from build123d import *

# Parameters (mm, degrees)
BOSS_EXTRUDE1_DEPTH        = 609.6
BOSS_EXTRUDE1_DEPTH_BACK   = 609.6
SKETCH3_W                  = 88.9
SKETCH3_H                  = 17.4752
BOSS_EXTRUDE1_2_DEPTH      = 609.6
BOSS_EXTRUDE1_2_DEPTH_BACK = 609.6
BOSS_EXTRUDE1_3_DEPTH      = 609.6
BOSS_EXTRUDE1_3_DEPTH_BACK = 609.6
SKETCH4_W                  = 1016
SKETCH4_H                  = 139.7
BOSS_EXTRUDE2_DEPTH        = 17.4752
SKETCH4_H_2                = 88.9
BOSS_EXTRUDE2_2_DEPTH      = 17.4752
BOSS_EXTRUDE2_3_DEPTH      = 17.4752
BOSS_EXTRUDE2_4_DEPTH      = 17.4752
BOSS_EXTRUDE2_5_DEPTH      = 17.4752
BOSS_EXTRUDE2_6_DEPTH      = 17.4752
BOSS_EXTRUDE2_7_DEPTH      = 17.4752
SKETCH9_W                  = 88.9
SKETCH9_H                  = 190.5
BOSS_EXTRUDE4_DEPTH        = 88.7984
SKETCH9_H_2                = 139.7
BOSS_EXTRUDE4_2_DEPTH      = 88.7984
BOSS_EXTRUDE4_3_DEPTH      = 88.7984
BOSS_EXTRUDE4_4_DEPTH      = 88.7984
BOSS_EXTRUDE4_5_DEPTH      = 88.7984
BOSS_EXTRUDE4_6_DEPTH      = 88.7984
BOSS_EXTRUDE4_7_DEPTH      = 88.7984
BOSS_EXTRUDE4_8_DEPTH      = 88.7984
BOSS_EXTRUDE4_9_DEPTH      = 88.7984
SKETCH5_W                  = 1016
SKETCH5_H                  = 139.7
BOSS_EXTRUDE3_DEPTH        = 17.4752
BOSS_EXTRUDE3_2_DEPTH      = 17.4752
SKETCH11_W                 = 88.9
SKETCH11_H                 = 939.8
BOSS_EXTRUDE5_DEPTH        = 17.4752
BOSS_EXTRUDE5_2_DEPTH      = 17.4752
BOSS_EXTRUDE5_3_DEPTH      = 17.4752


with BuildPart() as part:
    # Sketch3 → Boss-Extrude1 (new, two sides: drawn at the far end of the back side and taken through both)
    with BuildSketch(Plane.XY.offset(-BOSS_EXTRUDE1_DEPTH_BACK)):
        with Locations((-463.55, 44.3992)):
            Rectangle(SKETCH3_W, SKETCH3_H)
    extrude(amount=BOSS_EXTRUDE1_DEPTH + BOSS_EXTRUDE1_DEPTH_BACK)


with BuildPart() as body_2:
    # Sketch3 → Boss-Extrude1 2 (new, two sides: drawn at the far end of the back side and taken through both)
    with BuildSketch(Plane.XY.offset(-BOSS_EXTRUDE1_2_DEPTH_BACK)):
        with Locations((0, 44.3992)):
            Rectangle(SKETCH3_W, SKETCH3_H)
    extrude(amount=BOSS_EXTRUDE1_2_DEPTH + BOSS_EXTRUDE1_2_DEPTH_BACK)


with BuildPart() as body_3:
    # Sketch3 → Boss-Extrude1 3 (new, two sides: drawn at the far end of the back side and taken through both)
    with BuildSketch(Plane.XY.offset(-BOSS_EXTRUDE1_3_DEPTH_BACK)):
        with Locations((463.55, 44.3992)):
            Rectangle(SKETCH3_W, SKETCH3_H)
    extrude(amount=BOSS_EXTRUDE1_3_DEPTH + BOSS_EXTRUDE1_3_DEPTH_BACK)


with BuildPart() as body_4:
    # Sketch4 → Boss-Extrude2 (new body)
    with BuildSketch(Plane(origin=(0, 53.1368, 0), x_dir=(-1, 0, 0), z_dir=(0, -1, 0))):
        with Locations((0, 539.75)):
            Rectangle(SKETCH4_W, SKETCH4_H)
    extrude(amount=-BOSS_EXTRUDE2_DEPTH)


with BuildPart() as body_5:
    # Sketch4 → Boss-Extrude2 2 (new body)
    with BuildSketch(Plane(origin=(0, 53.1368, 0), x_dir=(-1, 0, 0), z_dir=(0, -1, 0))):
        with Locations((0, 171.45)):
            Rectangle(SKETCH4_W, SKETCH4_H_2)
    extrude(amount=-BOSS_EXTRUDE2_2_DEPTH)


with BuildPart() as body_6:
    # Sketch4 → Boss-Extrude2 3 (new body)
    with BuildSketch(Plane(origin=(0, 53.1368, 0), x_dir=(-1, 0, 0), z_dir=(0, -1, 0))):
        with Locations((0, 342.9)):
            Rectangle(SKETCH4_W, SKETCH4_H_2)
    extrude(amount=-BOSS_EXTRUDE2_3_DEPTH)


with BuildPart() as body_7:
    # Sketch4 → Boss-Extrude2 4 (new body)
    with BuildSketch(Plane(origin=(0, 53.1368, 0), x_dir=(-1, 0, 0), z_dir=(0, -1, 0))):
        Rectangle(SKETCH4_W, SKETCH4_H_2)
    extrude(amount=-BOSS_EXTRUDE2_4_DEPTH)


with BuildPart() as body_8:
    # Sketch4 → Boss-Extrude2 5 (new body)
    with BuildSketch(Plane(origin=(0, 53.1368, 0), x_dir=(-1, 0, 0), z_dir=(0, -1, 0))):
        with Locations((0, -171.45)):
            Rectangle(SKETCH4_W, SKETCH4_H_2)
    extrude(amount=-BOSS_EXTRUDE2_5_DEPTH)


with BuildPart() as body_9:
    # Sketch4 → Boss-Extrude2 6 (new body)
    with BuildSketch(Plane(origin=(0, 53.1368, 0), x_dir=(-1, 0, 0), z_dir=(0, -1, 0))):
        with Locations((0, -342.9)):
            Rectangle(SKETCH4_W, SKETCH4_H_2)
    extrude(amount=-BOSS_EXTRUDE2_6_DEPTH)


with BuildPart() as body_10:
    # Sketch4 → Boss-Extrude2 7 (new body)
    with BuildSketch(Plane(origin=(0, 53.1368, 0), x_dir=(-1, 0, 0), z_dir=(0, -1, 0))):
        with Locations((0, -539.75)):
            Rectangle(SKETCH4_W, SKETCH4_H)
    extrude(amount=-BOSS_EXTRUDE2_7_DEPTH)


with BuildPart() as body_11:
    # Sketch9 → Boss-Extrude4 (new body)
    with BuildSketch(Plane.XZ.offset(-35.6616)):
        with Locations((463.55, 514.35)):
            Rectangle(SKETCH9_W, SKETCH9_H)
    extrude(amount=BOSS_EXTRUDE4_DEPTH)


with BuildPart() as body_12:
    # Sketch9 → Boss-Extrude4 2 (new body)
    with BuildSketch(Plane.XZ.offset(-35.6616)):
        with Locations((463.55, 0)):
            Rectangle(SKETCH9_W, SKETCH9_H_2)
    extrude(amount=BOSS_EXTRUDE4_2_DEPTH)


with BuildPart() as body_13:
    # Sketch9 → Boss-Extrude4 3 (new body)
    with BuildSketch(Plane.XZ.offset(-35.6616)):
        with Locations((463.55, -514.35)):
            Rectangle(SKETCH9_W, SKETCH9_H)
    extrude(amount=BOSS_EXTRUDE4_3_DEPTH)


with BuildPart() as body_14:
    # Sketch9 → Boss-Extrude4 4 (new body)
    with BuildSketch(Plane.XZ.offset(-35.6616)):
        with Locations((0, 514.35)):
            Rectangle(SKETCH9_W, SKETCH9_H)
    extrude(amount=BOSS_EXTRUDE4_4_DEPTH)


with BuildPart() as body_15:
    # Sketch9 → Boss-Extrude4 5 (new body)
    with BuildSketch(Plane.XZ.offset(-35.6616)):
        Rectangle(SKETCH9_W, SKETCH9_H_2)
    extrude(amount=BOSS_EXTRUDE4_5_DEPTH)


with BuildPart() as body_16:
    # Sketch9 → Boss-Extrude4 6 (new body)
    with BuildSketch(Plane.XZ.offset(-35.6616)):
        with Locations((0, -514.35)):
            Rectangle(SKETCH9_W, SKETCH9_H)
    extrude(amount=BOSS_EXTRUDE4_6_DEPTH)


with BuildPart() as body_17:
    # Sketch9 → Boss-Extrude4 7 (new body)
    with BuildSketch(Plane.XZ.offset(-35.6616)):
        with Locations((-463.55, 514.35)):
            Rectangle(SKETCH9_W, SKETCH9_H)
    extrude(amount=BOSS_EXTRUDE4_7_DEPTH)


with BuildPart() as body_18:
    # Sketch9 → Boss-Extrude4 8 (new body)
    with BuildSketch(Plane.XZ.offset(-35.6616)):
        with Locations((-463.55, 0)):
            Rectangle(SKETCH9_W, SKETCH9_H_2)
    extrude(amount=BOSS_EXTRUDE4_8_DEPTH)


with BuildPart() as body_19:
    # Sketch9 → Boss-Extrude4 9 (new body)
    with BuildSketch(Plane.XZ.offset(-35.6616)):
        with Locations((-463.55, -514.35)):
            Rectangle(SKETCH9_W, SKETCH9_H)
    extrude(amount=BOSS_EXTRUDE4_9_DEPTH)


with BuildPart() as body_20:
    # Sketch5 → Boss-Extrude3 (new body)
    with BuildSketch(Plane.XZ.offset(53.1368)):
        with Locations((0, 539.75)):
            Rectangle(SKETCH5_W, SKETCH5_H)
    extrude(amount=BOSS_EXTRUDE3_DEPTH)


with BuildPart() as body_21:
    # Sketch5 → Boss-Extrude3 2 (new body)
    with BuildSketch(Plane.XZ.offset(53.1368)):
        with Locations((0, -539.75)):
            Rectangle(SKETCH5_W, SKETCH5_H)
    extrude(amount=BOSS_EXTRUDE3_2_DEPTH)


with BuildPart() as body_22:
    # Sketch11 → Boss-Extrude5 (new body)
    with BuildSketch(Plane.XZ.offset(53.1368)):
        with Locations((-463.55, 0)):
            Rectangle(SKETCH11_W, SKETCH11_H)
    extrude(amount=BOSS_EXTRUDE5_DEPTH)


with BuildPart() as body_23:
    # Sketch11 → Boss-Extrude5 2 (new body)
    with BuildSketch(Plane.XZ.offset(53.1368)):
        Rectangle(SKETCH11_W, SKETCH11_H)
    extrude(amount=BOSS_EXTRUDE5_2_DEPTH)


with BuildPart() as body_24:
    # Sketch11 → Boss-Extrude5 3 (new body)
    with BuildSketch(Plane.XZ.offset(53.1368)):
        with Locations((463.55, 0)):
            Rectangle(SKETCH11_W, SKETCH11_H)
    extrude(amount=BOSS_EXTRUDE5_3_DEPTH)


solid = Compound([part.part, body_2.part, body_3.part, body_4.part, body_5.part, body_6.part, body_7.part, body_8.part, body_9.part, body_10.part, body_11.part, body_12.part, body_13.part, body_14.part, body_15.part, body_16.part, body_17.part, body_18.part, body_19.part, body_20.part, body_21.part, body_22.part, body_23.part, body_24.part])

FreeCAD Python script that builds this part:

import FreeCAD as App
import Part
import Sketcher

V = App.Vector
Q = App.Units.Quantity

doc = App.newDocument("Part")
body = doc.addObject("PartDesign::Body", "Body")

sketch1 = doc.addObject("Sketcher::SketchObject", "Sketch")
body.addObject(sketch1)
sketch1.AttachmentSupport = (doc.XY_Plane, [""])
sketch1.MapMode = "FlatFace"
sketch1.addGeometry(Part.LineSegment(V(-508, 53, 0), V(-508, 36, 0)), False)
sketch1.addGeometry(Part.LineSegment(V(-508, 36, 0), V(-419, 36, 0)), False)
sketch1.addGeometry(Part.LineSegment(V(-419, 36, 0), V(-419, 53, 0)), False)
sketch1.addGeometry(Part.LineSegment(V(-419, 53, 0), V(-508, 53, 0)), False)
sketch1.addConstraint(Sketcher.Constraint("Coincident", 0, 2, 1, 1))
sketch1.addConstraint(Sketcher.Constraint("Coincident", 1, 2, 2, 1))
sketch1.addConstraint(Sketcher.Constraint("Coincident", 2, 2, 3, 1))
sketch1.addConstraint(Sketcher.Constraint("Coincident", 3, 2, 0, 1))
sketch1.addConstraint(Sketcher.Constraint("Vertical", 0))
sketch1.addConstraint(Sketcher.Constraint("Horizontal", 1))
sketch1.addConstraint(Sketcher.Constraint("Vertical", 2))
sketch1.addConstraint(Sketcher.Constraint("Horizontal", 3))
sketch1.addConstraint(Sketcher.Constraint("DistanceX", 1, 1, 1, 2, Q("3.5 in")))
sketch1.addConstraint(Sketcher.Constraint("DistanceX", 0, 2, -1, 1, Q("20 in")))
sketch1.addConstraint(Sketcher.Constraint("DistanceY", 0, 2, 0, 1, Q("0.688 in")))
sketch1.addConstraint(Sketcher.Constraint("DistanceY", -1, 1, 0, 2, Q("1.404 in")))
pad1 = doc.addObject("PartDesign::Pad", "Pad")
body.addObject(pad1)
pad1.Profile = sketch1
pad1.Type = "TwoLengths"
pad1.Length = Q("24 in")
pad1.Length2 = Q("24 in")
body2 = doc.addObject("PartDesign::Body", "Body001")

sketch2 = doc.addObject("Sketcher::SketchObject", "Sketch001")
body2.addObject(sketch2)
sketch2.AttachmentSupport = (doc.getObject("XY_Plane001"), [""])
sketch2.MapMode = "FlatFace"
sketch2.addGeometry(Part.LineSegment(V(-44, 53, 0), V(-44, 36, 0)), False)
sketch2.addGeometry(Part.LineSegment(V(-44, 36, 0), V(44, 36, 0)), False)
sketch2.addGeometry(Part.LineSegment(V(44, 36, 0), V(44, 53, 0)), False)
sketch2.addGeometry(Part.LineSegment(V(44, 53, 0), V(-44, 53, 0)), False)
sketch2.addConstraint(Sketcher.Constraint("Coincident", 0, 2, 1, 1))
sketch2.addConstraint(Sketcher.Constraint("Coincident", 1, 2, 2, 1))
sketch2.addConstraint(Sketcher.Constraint("Coincident", 2, 2, 3, 1))
sketch2.addConstraint(Sketcher.Constraint("Coincident", 3, 2, 0, 1))
sketch2.addConstraint(Sketcher.Constraint("Vertical", 0))
sketch2.addConstraint(Sketcher.Constraint("Horizontal", 1))
sketch2.addConstraint(Sketcher.Constraint("Vertical", 2))
sketch2.addConstraint(Sketcher.Constraint("Horizontal", 3))
sketch2.addConstraint(Sketcher.Constraint("DistanceX", 1, 1, 1, 2, Q("3.5 in")))
sketch2.addConstraint(Sketcher.Constraint("DistanceY", 0, 2, 0, 1, Q("0.688 in")))
sketch2.addConstraint(Sketcher.Constraint("DistanceX", 0, 2, -1, 1, Q("1.75 in")))
sketch2.addConstraint(Sketcher.Constraint("DistanceY", -1, 1, 0, 2, Q("1.404 in")))
pad2 = doc.addObject("PartDesign::Pad", "Pad001")
body2.addObject(pad2)
pad2.Profile = sketch2
pad2.Type = "TwoLengths"
pad2.Length = Q("24 in")
pad2.Length2 = Q("24 in")
body3 = doc.addObject("PartDesign::Body", "Body002")

sketch3 = doc.addObject("Sketcher::SketchObject", "Sketch002")
body3.addObject(sketch3)
sketch3.AttachmentSupport = (doc.getObject("XY_Plane002"), [""])
sketch3.MapMode = "FlatFace"
sketch3.addGeometry(Part.LineSegment(V(419, 53, 0), V(419, 36, 0)), False)
sketch3.addGeometry(Part.LineSegment(V(419, 36, 0), V(508, 36, 0)), False)
sketch3.addGeometry(Part.LineSegment(V(508, 36, 0), V(508, 53, 0)), False)
sketch3.addGeometry(Part.LineSegment(V(508, 53, 0), V(419, 53, 0)), False)
sketch3.addConstraint(Sketcher.Constraint("Coincident", 0, 2, 1, 1))
sketch3.addConstraint(Sketcher.Constraint("Coincident", 1, 2, 2, 1))
sketch3.addConstraint(Sketcher.Constraint("Coincident", 2, 2, 3, 1))
sketch3.addConstraint(Sketcher.Constraint("Coincident", 3, 2, 0, 1))
sketch3.addConstraint(Sketcher.Constraint("Vertical", 0))
sketch3.addConstraint(Sketcher.Constraint("Horizontal", 1))
sketch3.addConstraint(Sketcher.Constraint("Vertical", 2))
sketch3.addConstraint(Sketcher.Constraint("Horizontal", 3))
sketch3.addConstraint(Sketcher.Constraint("DistanceX", 1, 1, 1, 2, Q("3.5 in")))
sketch3.addConstraint(Sketcher.Constraint("DistanceX", -1, 1, 1, 2, Q("20 in")))
sketch3.addConstraint(Sketcher.Constraint("DistanceY", 0, 2, 0, 1, Q("0.688 in")))
sketch3.addConstraint(Sketcher.Constraint("DistanceY", -1, 1, 0, 2, Q("1.404 in")))
pad3 = doc.addObject("PartDesign::Pad", "Pad002")
body3.addObject(pad3)
pad3.Profile = sketch3
pad3.Type = "TwoLengths"
pad3.Length = Q("24 in")
pad3.Length2 = Q("24 in")
body4 = doc.addObject("PartDesign::Body", "Body003")

sketch4 = doc.addObject("Sketcher::SketchObject", "Sketch003")
body4.addObject(sketch4)
sketch4.AttachmentSupport = (doc.getObject("XZ_Plane003"), [""])
sketch4.MapMode = "FlatFace"
sketch4.AttachmentOffset = App.Placement(V(0, 0, -2.092 * 25.4), App.Rotation())
sketch4.addGeometry(Part.LineSegment(V(508, -610, 0), V(508, -470, 0)), False)
sketch4.addGeometry(Part.LineSegment(V(508, -470, 0), V(-508, -470, 0)), False)
sketch4.addGeometry(Part.LineSegment(V(-508, -470, 0), V(-508, -610, 0)), False)
sketch4.addGeometry(Part.LineSegment(V(-508, -610, 0), V(508, -610, 0)), False)
sketch4.addConstraint(Sketcher.Constraint("Coincident", 0, 2, 1, 1))
sketch4.addConstraint(Sketcher.Constraint("Coincident", 1, 2, 2, 1))
sketch4.addConstraint(Sketcher.Constraint("Coincident", 2, 2, 3, 1))
sketch4.addConstraint(Sketcher.Constraint("Coincident", 3, 2, 0, 1))
sketch4.addConstraint(Sketcher.Constraint("Vertical", 0))
sketch4.addConstraint(Sketcher.Constraint("Horizontal", 1))
sketch4.addConstraint(Sketcher.Constraint("Vertical", 2))
sketch4.addConstraint(Sketcher.Constraint("Horizontal", 3))
sketch4.addConstraint(Sketcher.Constraint("DistanceX", 1, 2, 1, 1, Q("40 in")))
sketch4.addConstraint(Sketcher.Constraint("DistanceY", 0, 1, 0, 2, Q("5.5 in")))
sketch4.addConstraint(Sketcher.Constraint("DistanceX", -1, 1, 0, 2, Q("20 in")))
sketch4.addConstraint(Sketcher.Constraint("DistanceY", 2, 2, -1, 1, Q("24 in")))
pad4 = doc.addObject("PartDesign::Pad", "Pad003")
body4.addObject(pad4)
pad4.Profile = sketch4
pad4.Length = Q("0.688 in")
pad4.Reversed = True
body5 = doc.addObject("PartDesign::Body", "Body004")

sketch5 = doc.addObject("Sketcher::SketchObject", "Sketch004")
body5.addObject(sketch5)
sketch5.AttachmentSupport = (doc.getObject("XZ_Plane004"), [""])
sketch5.MapMode = "FlatFace"
sketch5.AttachmentOffset = App.Placement(V(0, 0, -2.092 * 25.4), App.Rotation())
sketch5.addGeometry(Part.LineSegment(V(508, -216, 0), V(508, -127, 0)), False)
sketch5.addGeometry(Part.LineSegment(V(508, -127, 0), V(-508, -127, 0)), False)
sketch5.addGeometry(Part.LineSegment(V(-508, -127, 0), V(-508, -216, 0)), False)
sketch5.addGeometry(Part.LineSegment(V(-508, -216, 0), V(508, -216, 0)), False)
sketch5.addConstraint(Sketcher.Constraint("Coincident", 0, 2, 1, 1))
sketch5.addConstraint(Sketcher.Constraint("Coincident", 1, 2, 2, 1))
sketch5.addConstraint(Sketcher.Constraint("Coincident", 2, 2, 3, 1))
sketch5.addConstraint(Sketcher.Constraint("Coincident", 3, 2, 0, 1))
sketch5.addConstraint(Sketcher.Constraint("Vertical", 0))
sketch5.addConstraint(Sketcher.Constraint("Horizontal", 1))
sketch5.addConstraint(Sketcher.Constraint("Vertical", 2))
sketch5.addConstraint(Sketcher.Constraint("Horizontal", 3))
sketch5.addConstraint(Sketcher.Constraint("DistanceX", 1, 2, 1, 1, Q("40 in")))
sketch5.addConstraint(Sketcher.Constraint("DistanceY", 0, 1, 0, 2, Q("3.5 in")))
sketch5.addConstraint(Sketcher.Constraint("DistanceX", -1, 1, 0, 2, Q("20 in")))
sketch5.addConstraint(Sketcher.Constraint("DistanceY", 0, 2, -1, 1, Q("5 in")))
pad5 = doc.addObject("PartDesign::Pad", "Pad004")
body5.addObject(pad5)
pad5.Profile = sketch5
pad5.Length = Q("0.688 in")
pad5.Reversed = True
body6 = doc.addObject("PartDesign::Body", "Body005")

sketch6 = doc.addObject("Sketcher::SketchObject", "Sketch005")
body6.addObject(sketch6)
sketch6.AttachmentSupport = (doc.getObject("XZ_Plane005"), [""])
sketch6.MapMode = "FlatFace"
sketch6.AttachmentOffset = App.Placement(V(0, 0, -2.092 * 25.4), App.Rotation())
sketch6.addGeometry(Part.LineSegment(V(508, -387, 0), V(508, -298, 0)), False)
sketch6.addGeometry(Part.LineSegment(V(508, -298, 0), V(-508, -298, 0)), False)
sketch6.addGeometry(Part.LineSegment(V(-508, -298, 0), V(-508, -387, 0)), False)
sketch6.addGeometry(Part.LineSegment(V(-508, -387, 0), V(508, -387, 0)), False)
sketch6.addConstraint(Sketcher.Constraint("Coincident", 0, 2, 1, 1))
sketch6.addConstraint(Sketcher.Constraint("Coincident", 1, 2, 2, 1))
sketch6.addConstraint(Sketcher.Constraint("Coincident", 2, 2, 3, 1))
sketch6.addConstraint(Sketcher.Constraint("Coincident", 3, 2, 0, 1))
sketch6.addConstraint(Sketcher.Constraint("Vertical", 0))
sketch6.addConstraint(Sketcher.Constraint("Horizontal", 1))
sketch6.addConstraint(Sketcher.Constraint("Vertical", 2))
sketch6.addConstraint(Sketcher.Constraint("Horizontal", 3))
sketch6.addConstraint(Sketcher.Constraint("DistanceX", 1, 2, 1, 1, Q("40 in")))
sketch6.addConstraint(Sketcher.Constraint("DistanceY", 0, 1, 0, 2, Q("3.5 in")))
sketch6.addConstraint(Sketcher.Constraint("DistanceX", -1, 1, 0, 2, Q("20 in")))
sketch6.addConstraint(Sketcher.Constraint("DistanceY", 0, 2, -1, 1, Q("11.75 in")))
pad6 = doc.addObject("PartDesign::Pad", "Pad005")
body6.addObject(pad6)
pad6.Profile = sketch6
pad6.Length = Q("0.688 in")
pad6.Reversed = True
body7 = doc.addObject("PartDesign::Body", "Body006")

sketch7 = doc.addObject("Sketcher::SketchObject", "Sketch006")
body7.addObject(sketch7)
sketch7.AttachmentSupport = (doc.getObject("XZ_Plane006"), [""])
sketch7.MapMode = "FlatFace"
sketch7.AttachmentOffset = App.Placement(V(0, 0, -2.092 * 25.4), App.Rotation())
sketch7.addGeometry(Part.LineSegment(V(508, -44, 0), V(508, 44, 0)), False)
sketch7.addGeometry(Part.LineSegment(V(508, 44, 0), V(-508, 44, 0)), False)
sketch7.addGeometry(Part.LineSegment(V(-508, 44, 0), V(-508, -44, 0)), False)
sketch7.addGeometry(Part.LineSegment(V(-508, -44, 0), V(508, -44, 0)), False)
sketch7.addConstraint(Sketcher.Constraint("Coincident", 0, 2, 1, 1))
sketch7.addConstraint(Sketcher.Constraint("Coincident", 1, 2, 2, 1))
sketch7.addConstraint(Sketcher.Constraint("Coincident", 2, 2, 3, 1))
sketch7.addConstraint(Sketcher.Constraint("Coincident", 3, 2, 0, 1))
sketch7.addConstraint(Sketcher.Constraint("Vertical", 0))
sketch7.addConstraint(Sketcher.Constraint("Horizontal", 1))
sketch7.addConstraint(Sketcher.Constraint("Vertical", 2))
sketch7.addConstraint(Sketcher.Constraint("Horizontal", 3))
sketch7.addConstraint(Sketcher.Constraint("Symmetric", 0, 2, 2, 2, -1, 1))
sketch7.addConstraint(Sketcher.Constraint("DistanceX", 1, 2, 1, 1, Q("40 in")))
sketch7.addConstraint(Sketcher.Constraint("DistanceY", 0, 1, 0, 2, Q("3.5 in")))
pad7 = doc.addObject("PartDesign::Pad", "Pad006")
body7.addObject(pad7)
pad7.Profile = sketch7
pad7.Length = Q("0.688 in")
pad7.Reversed = True
body8 = doc.addObject("PartDesign::Body", "Body007")

sketch8 = doc.addObject("Sketcher::SketchObject", "Sketch007")
body8.addObject(sketch8)
sketch8.AttachmentSupport = (doc.getObject("XZ_Plane007"), [""])
sketch8.MapMode = "FlatFace"
sketch8.AttachmentOffset = App.Placement(V(0, 0, -2.092 * 25.4), App.Rotation())
sketch8.addGeometry(Part.LineSegment(V(508, 127, 0), V(508, 216, 0)), False)
sketch8.addGeometry(Part.LineSegment(V(508, 216, 0), V(-508, 216, 0)), False)
sketch8.addGeometry(Part.LineSegment(V(-508, 216, 0), V(-508, 127, 0)), False)
sketch8.addGeometry(Part.LineSegment(V(-508, 127, 0), V(508, 127, 0)), False)
sketch8.addConstraint(Sketcher.Constraint("Coincident", 0, 2, 1, 1))
sketch8.addConstraint(Sketcher.Constraint("Coincident", 1, 2, 2, 1))
sketch8.addConstraint(Sketcher.Constraint("Coincident", 2, 2, 3, 1))
sketch8.addConstraint(Sketcher.Constraint("Coincident", 3, 2, 0, 1))
sketch8.addConstraint(Sketcher.Constraint("Vertical", 0))
sketch8.addConstraint(Sketcher.Constraint("Horizontal", 1))
sketch8.addConstraint(Sketcher.Constraint("Vertical", 2))
sketch8.addConstraint(Sketcher.Constraint("Horizontal", 3))
sketch8.addConstraint(Sketcher.Constraint("DistanceX", 1, 2, 1, 1, Q("40 in")))
sketch8.addConstraint(Sketcher.Constraint("DistanceY", 0, 1, 0, 2, Q("3.5 in")))
sketch8.addConstraint(Sketcher.Constraint("DistanceX", -1, 1, 0, 2, Q("20 in")))
sketch8.addConstraint(Sketcher.Constraint("DistanceY", -1, 1, 2, 2, Q("5 in")))
pad8 = doc.addObject("PartDesign::Pad", "Pad007")
body8.addObject(pad8)
pad8.Profile = sketch8
pad8.Length = Q("0.688 in")
pad8.Reversed = True
body9 = doc.addObject("PartDesign::Body", "Body008")

sketch9 = doc.addObject("Sketcher::SketchObject", "Sketch008")
body9.addObject(sketch9)
sketch9.AttachmentSupport = (doc.getObject("XZ_Plane008"), [""])
sketch9.MapMode = "FlatFace"
sketch9.AttachmentOffset = App.Placement(V(0, 0, -2.092 * 25.4), App.Rotation())
sketch9.addGeometry(Part.LineSegment(V(508, 298, 0), V(508, 387, 0)), False)
sketch9.addGeometry(Part.LineSegment(V(508, 387, 0), V(-508, 387, 0)), False)
sketch9.addGeometry(Part.LineSegment(V(-508, 387, 0), V(-508, 298, 0)), False)
sketch9.addGeometry(Part.LineSegment(V(-508, 298, 0), V(508, 298, 0)), False)
sketch9.addConstraint(Sketcher.Constraint("Coincident", 0, 2, 1, 1))
sketch9.addConstraint(Sketcher.Constraint("Coincident", 1, 2, 2, 1))
sketch9.addConstraint(Sketcher.Constraint("Coincident", 2, 2, 3, 1))
sketch9.addConstraint(Sketcher.Constraint("Coincident", 3, 2, 0, 1))
sketch9.addConstraint(Sketcher.Constraint("Vertical", 0))
sketch9.addConstraint(Sketcher.Constraint("Horizontal", 1))
sketch9.addConstraint(Sketcher.Constraint("Vertical", 2))
sketch9.addConstraint(Sketcher.Constraint("Horizontal", 3))
sketch9.addConstraint(Sketcher.Constraint("DistanceX", 1, 2, 1, 1, Q("40 in")))
sketch9.addConstraint(Sketcher.Constraint("DistanceY", 0, 1, 0, 2, Q("3.5 in")))
sketch9.addConstraint(Sketcher.Constraint("DistanceX", -1, 1, 0, 2, Q("20 in")))
sketch9.addConstraint(Sketcher.Constraint("DistanceY", -1, 1, 0, 2, Q("15.25 in")))
pad9 = doc.addObject("PartDesign::Pad", "Pad008")
body9.addObject(pad9)
pad9.Profile = sketch9
pad9.Length = Q("0.688 in")
pad9.Reversed = True
body10 = doc.addObject("PartDesign::Body", "Body009")

sketch10 = doc.addObject("Sketcher::SketchObject", "Sketch009")
body10.addObject(sketch10)
sketch10.AttachmentSupport = (doc.getObject("XZ_Plane009"), [""])
sketch10.MapMode = "FlatFace"
sketch10.AttachmentOffset = App.Placement(V(0, 0, -2.092 * 25.4), App.Rotation())
sketch10.addGeometry(Part.LineSegment(V(508, 470, 0), V(508, 610, 0)), False)
sketch10.addGeometry(Part.LineSegment(V(508, 610, 0), V(-508, 610, 0)), False)
sketch10.addGeometry(Part.LineSegment(V(-508, 610, 0), V(-508, 470, 0)), False)
sketch10.addGeometry(Part.LineSegment(V(-508, 470, 0), V(508, 470, 0)), False)
sketch10.addConstraint(Sketcher.Constraint("Coincident", 0, 2, 1, 1))
sketch10.addConstraint(Sketcher.Constraint("Coincident", 1, 2, 2, 1))
sketch10.addConstraint(Sketcher.Constraint("Coincident", 2, 2, 3, 1))
sketch10.addConstraint(Sketcher.Constraint("Coincident", 3, 2, 0, 1))
sketch10.addConstraint(Sketcher.Constraint("Vertical", 0))
sketch10.addConstraint(Sketcher.Constraint("Horizontal", 1))
sketch10.addConstraint(Sketcher.Constraint("Vertical", 2))
sketch10.addConstraint(Sketcher.Constraint("Horizontal", 3))
sketch10.addConstraint(Sketcher.Constraint("DistanceX", 1, 2, 1, 1, Q("40 in")))
sketch10.addConstraint(Sketcher.Constraint("DistanceY", 0, 1, 0, 2, Q("5.5 in")))
sketch10.addConstraint(Sketcher.Constraint("DistanceX", -1, 1, 0, 2, Q("20 in")))
sketch10.addConstraint(Sketcher.Constraint("DistanceY", -1, 1, 0, 2, Q("24 in")))
pad10 = doc.addObject("PartDesign::Pad", "Pad009")
body10.addObject(pad10)
pad10.Profile = sketch10
pad10.Length = Q("0.688 in")
pad10.Reversed = True
body11 = doc.addObject("PartDesign::Body", "Body010")

sketch11 = doc.addObject("Sketcher::SketchObject", "Sketch010")
body11.addObject(sketch11)
sketch11.AttachmentSupport = (doc.getObject("XZ_Plane010"), [""])
sketch11.MapMode = "FlatFace"
sketch11.AttachmentOffset = App.Placement(V(0, 0, -1.404 * 25.4), App.Rotation())
sketch11.addGeometry(Part.LineSegment(V(419, 610, 0), V(419, 419, 0)), False)
sketch11.addGeometry(Part.LineSegment(V(419, 419, 0), V(508, 419, 0)), False)
sketch11.addGeometry(Part.LineSegment(V(508, 419, 0), V(508, 610, 0)), False)
sketch11.addGeometry(Part.LineSegment(V(508, 610, 0), V(419, 610, 0)), False)
sketch11.addConstraint(Sketcher.Constraint("Coincident", 0, 2, 1, 1))
sketch11.addConstraint(Sketcher.Constraint("Coincident", 1, 2, 2, 1))
sketch11.addConstraint(Sketcher.Constraint("Coincident", 2, 2, 3, 1))
sketch11.addConstraint(Sketcher.Constraint("Coincident", 3, 2, 0, 1))
sketch11.addConstraint(Sketcher.Constraint("Vertical", 0))
sketch11.addConstraint(Sketcher.Constraint("Horizontal", 1))
sketch11.addConstraint(Sketcher.Constraint("Vertical", 2))
sketch11.addConstraint(Sketcher.Constraint("Horizontal", 3))
sketch11.addConstraint(Sketcher.Constraint("DistanceX", 1, 1, 1, 2, Q("3.5 in")))
sketch11.addConstraint(Sketcher.Constraint("DistanceY", 0, 2, 0, 1, Q("7.5 in")))
sketch11.addConstraint(Sketcher.Constraint("DistanceX", -1, 1, 1, 2, Q("20 in")))
sketch11.addConstraint(Sketcher.Constraint("DistanceY", -1, 1, 2, 2, Q("24 in")))
pad11 = doc.addObject("PartDesign::Pad", "Pad010")
body11.addObject(pad11)
pad11.Profile = sketch11
pad11.Length = Q("3.496 in")
body12 = doc.addObject("PartDesign::Body", "Body011")

sketch12 = doc.addObject("Sketcher::SketchObject", "Sketch011")
body12.addObject(sketch12)
sketch12.AttachmentSupport = (doc.getObject("XZ_Plane011"), [""])
sketch12.MapMode = "FlatFace"
sketch12.AttachmentOffset = App.Placement(V(0, 0, -1.404 * 25.4), App.Rotation())
sketch12.addGeometry(Part.LineSegment(V(419, 70, 0), V(419, -70, 0)), False)
sketch12.addGeometry(Part.LineSegment(V(419, -70, 0), V(508, -70, 0)), False)
sketch12.addGeometry(Part.LineSegment(V(508, -70, 0), V(508, 70, 0)), False)
sketch12.addGeometry(Part.LineSegment(V(508, 70, 0), V(419, 70, 0)), False)
sketch12.addConstraint(Sketcher.Constraint("Coincident", 0, 2, 1, 1))
sketch12.addConstraint(Sketcher.Constraint("Coincident", 1, 2, 2, 1))
sketch12.addConstraint(Sketcher.Constraint("Coincident", 2, 2, 3, 1))
sketch12.addConstraint(Sketcher.Constraint("Coincident", 3, 2, 0, 1))
sketch12.addConstraint(Sketcher.Constraint("Vertical", 0))
sketch12.addConstraint(Sketcher.Constraint("Horizontal", 1))
sketch12.addConstraint(Sketcher.Constraint("Vertical", 2))
sketch12.addConstraint(Sketcher.Constraint("Horizontal", 3))
sketch12.addConstraint(Sketcher.Constraint("DistanceX", 1, 1, 1, 2, Q("3.5 in")))
sketch12.addConstraint(Sketcher.Constraint("DistanceY", 0, 2, 0, 1, Q("5.5 in")))
sketch12.addConstraint(Sketcher.Constraint("DistanceX", -1, 1, 1, 2, Q("20 in")))
sketch12.addConstraint(Sketcher.Constraint("DistanceY", 0, 2, -1, 1, Q("2.75 in")))
pad12 = doc.addObject("PartDesign::Pad", "Pad011")
body12.addObject(pad12)
pad12.Profile = sketch12
pad12.Length = Q("3.496 in")
body13 = doc.addObject("PartDesign::Body", "Body012")

sketch13 = doc.addObject("Sketcher::SketchObject", "Sketch012")
body13.addObject(sketch13)
sketch13.AttachmentSupport = (doc.getObject("XZ_Plane012"), [""])
sketch13.MapMode = "FlatFace"
sketch13.AttachmentOffset = App.Placement(V(0, 0, -1.404 * 25.4), App.Rotation())
sketch13.addGeometry(Part.LineSegment(V(419, -419, 0), V(419, -610, 0)), False)
sketch13.addGeometry(Part.LineSegment(V(419, -610, 0), V(508, -610, 0)), False)
sketch13.addGeometry(Part.LineSegment(V(508, -610, 0), V(508, -419, 0)), False)
sketch13.addGeometry(Part.LineSegment(V(508, -419, 0), V(419, -419, 0)), False)
sketch13.addConstraint(Sketcher.Constraint("Coincident", 0, 2, 1, 1))
sketch13.addConstraint(Sketcher.Constraint("Coincident", 1, 2, 2, 1))
sketch13.addConstraint(Sketcher.Constraint("Coincident", 2, 2, 3, 1))
sketch13.addConstraint(Sketcher.Constraint("Coincident", 3, 2, 0, 1))
sketch13.addConstraint(Sketcher.Constraint("Vertical", 0))
sketch13.addConstraint(Sketcher.Constraint("Horizontal", 1))
sketch13.addConstraint(Sketcher.Constraint("Vertical", 2))
sketch13.addConstraint(Sketcher.Constraint("Horizontal", 3))
sketch13.addConstraint(Sketcher.Constraint("DistanceX", 1, 1, 1, 2, Q("3.5 in")))
sketch13.addConstraint(Sketcher.Constraint("DistanceY", 0, 2, 0, 1, Q("7.5 in")))
sketch13.addConstraint(Sketcher.Constraint("DistanceY", 0, 2, -1, 1, Q("24 in")))
sketch13.addConstraint(Sketcher.Constraint("DistanceX", -1, 1, 1, 2, Q("20 in")))
pad13 = doc.addObject("PartDesign::Pad", "Pad012")
body13.addObject(pad13)
pad13.Profile = sketch13
pad13.Length = Q("3.496 in")
body14 = doc.addObject("PartDesign::Body", "Body013")

sketch14 = doc.addObject("Sketcher::SketchObject", "Sketch013")
body14.addObject(sketch14)
sketch14.AttachmentSupport = (doc.getObject("XZ_Plane013"), [""])
sketch14.MapMode = "FlatFace"
sketch14.AttachmentOffset = App.Placement(V(0, 0, -1.404 * 25.4), App.Rotation())
sketch14.addGeometry(Part.LineSegment(V(-44, 610, 0), V(-44, 419, 0)), False)
sketch14.addGeometry(Part.LineSegment(V(-44, 419, 0), V(44, 419, 0)), False)
sketch14.addGeometry(Part.LineSegment(V(44, 419, 0), V(44, 610, 0)), False)
sketch14.addGeometry(Part.LineSegment(V(44, 610, 0), V(-44, 610, 0)), False)
sketch14.addConstraint(Sketcher.Constraint("Coincident", 0, 2, 1, 1))
sketch14.addConstraint(Sketcher.Constraint("Coincident", 1, 2, 2, 1))
sketch14.addConstraint(Sketcher.Constraint("Coincident", 2, 2, 3, 1))
sketch14.addConstraint(Sketcher.Constraint("Coincident", 3, 2, 0, 1))
sketch14.addConstraint(Sketcher.Constraint("Vertical", 0))
sketch14.addConstraint(Sketcher.Constraint("Horizontal", 1))
sketch14.addConstraint(Sketcher.Constraint("Vertical", 2))
sketch14.addConstraint(Sketcher.Constraint("Horizontal", 3))
sketch14.addConstraint(Sketcher.Constraint("DistanceX", 1, 1, 1, 2, Q("3.5 in")))
sketch14.addConstraint(Sketcher.Constraint("DistanceY", 0, 2, 0, 1, Q("7.5 in")))
sketch14.addConstraint(Sketcher.Constraint("DistanceY", -1, 1, 2, 2, Q("24 in")))
sketch14.addConstraint(Sketcher.Constraint("DistanceX", 0, 2, -1, 1, Q("1.75 in")))
pad14 = doc.addObject("PartDesign::Pad", "Pad013")
body14.addObject(pad14)
pad14.Profile = sketch14
pad14.Length = Q("3.496 in")
body15 = doc.addObject("PartDesign::Body", "Body014")

sketch15 = doc.addObject("Sketcher::SketchObject", "Sketch014")
body15.addObject(sketch15)
sketch15.AttachmentSupport = (doc.getObject("XZ_Plane014"), [""])
sketch15.MapMode = "FlatFace"
sketch15.AttachmentOffset = App.Placement(V(0, 0, -1.404 * 25.4), App.Rotation())
sketch15.addGeometry(Part.LineSegment(V(-44, 70, 0), V(-44, -70, 0)), False)
sketch15.addGeometry(Part.LineSegment(V(-44, -70, 0), V(44, -70, 0)), False)
sketch15.addGeometry(Part.LineSegment(V(44, -70, 0), V(44, 70, 0)), False)
sketch15.addGeometry(Part.LineSegment(V(44, 70, 0), V(-44, 70, 0)), False)
sketch15.addConstraint(Sketcher.Constraint("Coincident", 0, 2, 1, 1))
sketch15.addConstraint(Sketcher.Constraint("Coincident", 1, 2, 2, 1))
sketch15.addConstraint(Sketcher.Constraint("Coincident", 2, 2, 3, 1))
sketch15.addConstraint(Sketcher.Constraint("Coincident", 3, 2, 0, 1))
sketch15.addConstraint(Sketcher.Constraint("Vertical", 0))
sketch15.addConstraint(Sketcher.Constraint("Horizontal", 1))
sketch15.addConstraint(Sketcher.Constraint("Vertical", 2))
sketch15.addConstraint(Sketcher.Constraint("Horizontal", 3))
sketch15.addConstraint(Sketcher.Constraint("Symmetric", 0, 2, 2, 2, -1, 1))
sketch15.addConstraint(Sketcher.Constraint("DistanceX", 1, 1, 1, 2, Q("3.5 in")))
sketch15.addConstraint(Sketcher.Constraint("DistanceY", 0, 2, 0, 1, Q("5.5 in")))
pad15 = doc.addObject("PartDesign::Pad", "Pad014")
body15.addObject(pad15)
pad15.Profile = sketch15
pad15.Length = Q("3.496 in")
body16 = doc.addObject("PartDesign::Body", "Body015")

sketch16 = doc.addObject("Sketcher::SketchObject", "Sketch015")
body16.addObject(sketch16)
sketch16.AttachmentSupport = (doc.getObject("XZ_Plane015"), [""])
sketch16.MapMode = "FlatFace"
sketch16.AttachmentOffset = App.Placement(V(0, 0, -1.404 * 25.4), App.Rotation())
sketch16.addGeometry(Part.LineSegment(V(-44, -419, 0), V(-44, -610, 0)), False)
sketch16.addGeometry(Part.LineSegment(V(-44, -610, 0), V(44, -610, 0)), False)
sketch16.addGeometry(Part.LineSegment(V(44, -610, 0), V(44, -419, 0)), False)
sketch16.addGeometry(Part.LineSegment(V(44, -419, 0), V(-44, -419, 0)), False)
sketch16.addConstraint(Sketcher.Constraint("Coincident", 0, 2, 1, 1))
sketch16.addConstraint(Sketcher.Constraint("Coincident", 1, 2, 2, 1))
sketch16.addConstraint(Sketcher.Constraint("Coincident", 2, 2, 3, 1))
sketch16.addConstraint(Sketcher.Constraint("Coincident", 3, 2, 0, 1))
sketch16.addConstraint(Sketcher.Constraint("Vertical", 0))
sketch16.addConstraint(Sketcher.Constraint("Horizontal", 1))
sketch16.addConstraint(Sketcher.Constraint("Vertical", 2))
sketch16.addConstraint(Sketcher.Constraint("Horizontal", 3))
sketch16.addConstraint(Sketcher.Constraint("DistanceX", 1, 1, 1, 2, Q("3.5 in")))
sketch16.addConstraint(Sketcher.Constraint("DistanceY", 0, 2, 0, 1, Q("7.5 in")))
sketch16.addConstraint(Sketcher.Constraint("DistanceY", 0, 2, -1, 1, Q("24 in")))
sketch16.addConstraint(Sketcher.Constraint("DistanceX", 0, 2, -1, 1, Q("1.75 in")))
pad16 = doc.addObject("PartDesign::Pad", "Pad015")
body16.addObject(pad16)
pad16.Profile = sketch16
pad16.Length = Q("3.496 in")
body17 = doc.addObject("PartDesign::Body", "Body016")

sketch17 = doc.addObject("Sketcher::SketchObject", "Sketch016")
body17.addObject(sketch17)
sketch17.AttachmentSupport = (doc.getObject("XZ_Plane016"), [""])
sketch17.MapMode = "FlatFace"
sketch17.AttachmentOffset = App.Placement(V(0, 0, -1.404 * 25.4), App.Rotation())
sketch17.addGeometry(Part.LineSegment(V(-508, 610, 0), V(-508, 419, 0)), False)
sketch17.addGeometry(Part.LineSegment(V(-508, 419, 0), V(-419, 419, 0)), False)
sketch17.addGeometry(Part.LineSegment(V(-419, 419, 0), V(-419, 610, 0)), False)
sketch17.addGeometry(Part.LineSegment(V(-419, 610, 0), V(-508, 610, 0)), False)
sketch17.addConstraint(Sketcher.Constraint("Coincident", 0, 2, 1, 1))
sketch17.addConstraint(Sketcher.Constraint("Coincident", 1, 2, 2, 1))
sketch17.addConstraint(Sketcher.Constraint("Coincident", 2, 2, 3, 1))
sketch17.addConstraint(Sketcher.Constraint("Coincident", 3, 2, 0, 1))
sketch17.addConstraint(Sketcher.Constraint("Vertical", 0))
sketch17.addConstraint(Sketcher.Constraint("Horizontal", 1))
sketch17.addConstraint(Sketcher.Constraint("Vertical", 2))
sketch17.addConstraint(Sketcher.Constraint("Horizontal", 3))
sketch17.addConstraint(Sketcher.Constraint("DistanceX", 1, 1, 1, 2, Q("3.5 in")))
sketch17.addConstraint(Sketcher.Constraint("DistanceY", 0, 2, 0, 1, Q("7.5 in")))
sketch17.addConstraint(Sketcher.Constraint("DistanceX", 0, 2, -1, 1, Q("20 in")))
sketch17.addConstraint(Sketcher.Constraint("DistanceY", -1, 1, 2, 2, Q("24 in")))
pad17 = doc.addObject("PartDesign::Pad", "Pad016")
body17.addObject(pad17)
pad17.Profile = sketch17
pad17.Length = Q("3.496 in")
body18 = doc.addObject("PartDesign::Body", "Body017")

sketch18 = doc.addObject("Sketcher::SketchObject", "Sketch017")
body18.addObject(sketch18)
sketch18.AttachmentSupport = (doc.getObject("XZ_Plane017"), [""])
sketch18.MapMode = "FlatFace"
sketch18.AttachmentOffset = App.Placement(V(0, 0, -1.404 * 25.4), App.Rotation())
sketch18.addGeometry(Part.LineSegment(V(-508, 70, 0), V(-508, -70, 0)), False)
sketch18.addGeometry(Part.LineSegment(V(-508, -70, 0), V(-419, -70, 0)), False)
sketch18.addGeometry(Part.LineSegment(V(-419, -70, 0), V(-419, 70, 0)), False)
sketch18.addGeometry(Part.LineSegment(V(-419, 70, 0), V(-508, 70, 0)), False)
sketch18.addConstraint(Sketcher.Constraint("Coincident", 0, 2, 1, 1))
sketch18.addConstraint(Sketcher.Constraint("Coincident", 1, 2, 2, 1))
sketch18.addConstraint(Sketcher.Constraint("Coincident", 2, 2, 3, 1))
sketch18.addConstraint(Sketcher.Constraint("Coincident", 3, 2, 0, 1))
sketch18.addConstraint(Sketcher.Constraint("Vertical", 0))
sketch18.addConstraint(Sketcher.Constraint("Horizontal", 1))
sketch18.addConstraint(Sketcher.Constraint("Vertical", 2))
sketch18.addConstraint(Sketcher.Constraint("Horizontal", 3))
sketch18.addConstraint(Sketcher.Constraint("DistanceX", 1, 1, 1, 2, Q("3.5 in")))
sketch18.addConstraint(Sketcher.Constraint("DistanceY", 0, 2, 0, 1, Q("5.5 in")))
sketch18.addConstraint(Sketcher.Constraint("DistanceX", 0, 2, -1, 1, Q("20 in")))
sketch18.addConstraint(Sketcher.Constraint("DistanceY", 0, 2, -1, 1, Q("2.75 in")))
pad18 = doc.addObject("PartDesign::Pad", "Pad017")
body18.addObject(pad18)
pad18.Profile = sketch18
pad18.Length = Q("3.496 in")
body19 = doc.addObject("PartDesign::Body", "Body018")

sketch19 = doc.addObject("Sketcher::SketchObject", "Sketch018")
body19.addObject(sketch19)
sketch19.AttachmentSupport = (doc.getObject("XZ_Plane018"), [""])
sketch19.MapMode = "FlatFace"
sketch19.AttachmentOffset = App.Placement(V(0, 0, -1.404 * 25.4), App.Rotation())
sketch19.addGeometry(Part.LineSegment(V(-508, -419, 0), V(-508, -610, 0)), False)
sketch19.addGeometry(Part.LineSegment(V(-508, -610, 0), V(-419, -610, 0)), False)
sketch19.addGeometry(Part.LineSegment(V(-419, -610, 0), V(-419, -419, 0)), False)
sketch19.addGeometry(Part.LineSegment(V(-419, -419, 0), V(-508, -419, 0)), False)
sketch19.addConstraint(Sketcher.Constraint("Coincident", 0, 2, 1, 1))
sketch19.addConstraint(Sketcher.Constraint("Coincident", 1, 2, 2, 1))
sketch19.addConstraint(Sketcher.Constraint("Coincident", 2, 2, 3, 1))
sketch19.addConstraint(Sketcher.Constraint("Coincident", 3, 2, 0, 1))
sketch19.addConstraint(Sketcher.Constraint("Vertical", 0))
sketch19.addConstraint(Sketcher.Constraint("Horizontal", 1))
sketch19.addConstraint(Sketcher.Constraint("Vertical", 2))
sketch19.addConstraint(Sketcher.Constraint("Horizontal", 3))
sketch19.addConstraint(Sketcher.Constraint("DistanceX", 1, 1, 1, 2, Q("3.5 in")))
sketch19.addConstraint(Sketcher.Constraint("DistanceY", 0, 2, 0, 1, Q("7.5 in")))
sketch19.addConstraint(Sketcher.Constraint("DistanceX", 0, 2, -1, 1, Q("20 in")))
sketch19.addConstraint(Sketcher.Constraint("DistanceY", 0, 2, -1, 1, Q("24 in")))
pad19 = doc.addObject("PartDesign::Pad", "Pad018")
body19.addObject(pad19)
pad19.Profile = sketch19
pad19.Length = Q("3.496 in")
body20 = doc.addObject("PartDesign::Body", "Body019")

sketch20 = doc.addObject("Sketcher::SketchObject", "Sketch019")
body20.addObject(sketch20)
sketch20.AttachmentSupport = (doc.getObject("XZ_Plane019"), [""])
sketch20.MapMode = "FlatFace"
sketch20.AttachmentOffset = App.Placement(V(0, 0, 2.092 * 25.4), App.Rotation())
sketch20.addGeometry(Part.LineSegment(V(-508, 610, 0), V(-508, 470, 0)), False)
sketch20.addGeometry(Part.LineSegment(V(-508, 470, 0), V(508, 470, 0)), False)
sketch20.addGeometry(Part.LineSegment(V(508, 470, 0), V(508, 610, 0)), False)
sketch20.addGeometry(Part.LineSegment(V(508, 610, 0), V(-508, 610, 0)), False)
sketch20.addConstraint(Sketcher.Constraint("Coincident", 0, 2, 1, 1))
sketch20.addConstraint(Sketcher.Constraint("Coincident", 1, 2, 2, 1))
sketch20.addConstraint(Sketcher.Constraint("Coincident", 2, 2, 3, 1))
sketch20.addConstraint(Sketcher.Constraint("Coincident", 3, 2, 0, 1))
sketch20.addConstraint(Sketcher.Constraint("Vertical", 0))
sketch20.addConstraint(Sketcher.Constraint("Horizontal", 1))
sketch20.addConstraint(Sketcher.Constraint("Vertical", 2))
sketch20.addConstraint(Sketcher.Constraint("Horizontal", 3))
sketch20.addConstraint(Sketcher.Constraint("DistanceX", 1, 1, 1, 2, Q("40 in")))
sketch20.addConstraint(Sketcher.Constraint("DistanceY", 0, 2, 0, 1, Q("5.5 in")))
sketch20.addConstraint(Sketcher.Constraint("DistanceX", 0, 2, -1, 1, Q("20 in")))
sketch20.addConstraint(Sketcher.Constraint("DistanceY", -1, 1, 2, 2, Q("24 in")))
pad20 = doc.addObject("PartDesign::Pad", "Pad019")
body20.addObject(pad20)
pad20.Profile = sketch20
pad20.Length = Q("0.688 in")
body21 = doc.addObject("PartDesign::Body", "Body020")

sketch21 = doc.addObject("Sketcher::SketchObject", "Sketch020")
body21.addObject(sketch21)
sketch21.AttachmentSupport = (doc.getObject("XZ_Plane020"), [""])
sketch21.MapMode = "FlatFace"
sketch21.AttachmentOffset = App.Placement(V(0, 0, 2.092 * 25.4), App.Rotation())
sketch21.addGeometry(Part.LineSegment(V(-508, -470, 0), V(-508, -610, 0)), False)
sketch21.addGeometry(Part.LineSegment(V(-508, -610, 0), V(508, -610, 0)), False)
sketch21.addGeometry(Part.LineSegment(V(508, -610, 0), V(508, -470, 0)), False)
sketch21.addGeometry(Part.LineSegment(V(508, -470, 0), V(-508, -470, 0)), False)
sketch21.addConstraint(Sketcher.Constraint("Coincident", 0, 2, 1, 1))
sketch21.addConstraint(Sketcher.Constraint("Coincident", 1, 2, 2, 1))
sketch21.addConstraint(Sketcher.Constraint("Coincident", 2, 2, 3, 1))
sketch21.addConstraint(Sketcher.Constraint("Coincident", 3, 2, 0, 1))
sketch21.addConstraint(Sketcher.Constraint("Vertical", 0))
sketch21.addConstraint(Sketcher.Constraint("Horizontal", 1))
sketch21.addConstraint(Sketcher.Constraint("Vertical", 2))
sketch21.addConstraint(Sketcher.Constraint("Horizontal", 3))
sketch21.addConstraint(Sketcher.Constraint("DistanceX", 1, 1, 1, 2, Q("40 in")))
sketch21.addConstraint(Sketcher.Constraint("DistanceY", 0, 2, 0, 1, Q("5.5 in")))
sketch21.addConstraint(Sketcher.Constraint("DistanceX", 0, 2, -1, 1, Q("20 in")))
sketch21.addConstraint(Sketcher.Constraint("DistanceY", 0, 2, -1, 1, Q("24 in")))
pad21 = doc.addObject("PartDesign::Pad", "Pad020")
body21.addObject(pad21)
pad21.Profile = sketch21
pad21.Length = Q("0.688 in")
body22 = doc.addObject("PartDesign::Body", "Body021")

sketch22 = doc.addObject("Sketcher::SketchObject", "Sketch021")
body22.addObject(sketch22)
sketch22.AttachmentSupport = (doc.getObject("XZ_Plane021"), [""])
sketch22.MapMode = "FlatFace"
sketch22.AttachmentOffset = App.Placement(V(0, 0, 2.092 * 25.4), App.Rotation())
sketch22.addGeometry(Part.LineSegment(V(-508, 470, 0), V(-508, -470, 0)), False)
sketch22.addGeometry(Part.LineSegment(V(-508, -470, 0), V(-419, -470, 0)), False)
sketch22.addGeometry(Part.LineSegment(V(-419, -470, 0), V(-419, 470, 0)), False)
sketch22.addGeometry(Part.LineSegment(V(-419, 470, 0), V(-508, 470, 0)), False)
sketch22.addConstraint(Sketcher.Constraint("Coincident", 0, 2, 1, 1))
sketch22.addConstraint(Sketcher.Constraint("Coincident", 1, 2, 2, 1))
sketch22.addConstraint(Sketcher.Constraint("Coincident", 2, 2, 3, 1))
sketch22.addConstraint(Sketcher.Constraint("Coincident", 3, 2, 0, 1))
sketch22.addConstraint(Sketcher.Constraint("Vertical", 0))
sketch22.addConstraint(Sketcher.Constraint("Horizontal", 1))
sketch22.addConstraint(Sketcher.Constraint("Vertical", 2))
sketch22.addConstraint(Sketcher.Constraint("Horizontal", 3))
sketch22.addConstraint(Sketcher.Constraint("DistanceY", 0, 2, 0, 1, Q("37 in")))
sketch22.addConstraint(Sketcher.Constraint("DistanceX", 1, 1, 1, 2, Q("3.5 in")))
sketch22.addConstraint(Sketcher.Constraint("DistanceX", 0, 2, -1, 1, Q("20 in")))
sketch22.addConstraint(Sketcher.Constraint("DistanceY", 0, 2, -1, 1, Q("18.5 in")))
pad22 = doc.addObject("PartDesign::Pad", "Pad021")
body22.addObject(pad22)
pad22.Profile = sketch22
pad22.Length = Q("0.688 in")
body23 = doc.addObject("PartDesign::Body", "Body022")

sketch23 = doc.addObject("Sketcher::SketchObject", "Sketch022")
body23.addObject(sketch23)
sketch23.AttachmentSupport = (doc.getObject("XZ_Plane022"), [""])
sketch23.MapMode = "FlatFace"
sketch23.AttachmentOffset = App.Placement(V(0, 0, 2.092 * 25.4), App.Rotation())
sketch23.addGeometry(Part.LineSegment(V(-44, 470, 0), V(-44, -470, 0)), False)
sketch23.addGeometry(Part.LineSegment(V(-44, -470, 0), V(44, -470, 0)), False)
sketch23.addGeometry(Part.LineSegment(V(44, -470, 0), V(44, 470, 0)), False)
sketch23.addGeometry(Part.LineSegment(V(44, 470, 0), V(-44, 470, 0)), False)
sketch23.addConstraint(Sketcher.Constraint("Coincident", 0, 2, 1, 1))
sketch23.addConstraint(Sketcher.Constraint("Coincident", 1, 2, 2, 1))
sketch23.addConstraint(Sketcher.Constraint("Coincident", 2, 2, 3, 1))
sketch23.addConstraint(Sketcher.Constraint("Coincident", 3, 2, 0, 1))
sketch23.addConstraint(Sketcher.Constraint("Vertical", 0))
sketch23.addConstraint(Sketcher.Constraint("Horizontal", 1))
sketch23.addConstraint(Sketcher.Constraint("Vertical", 2))
sketch23.addConstraint(Sketcher.Constraint("Horizontal", 3))
sketch23.addConstraint(Sketcher.Constraint("Symmetric", 0, 2, 2, 2, -1, 1))
sketch23.addConstraint(Sketcher.Constraint("DistanceY", 0, 2, 0, 1, Q("37 in")))
sketch23.addConstraint(Sketcher.Constraint("DistanceX", 1, 1, 1, 2, Q("3.5 in")))
pad23 = doc.addObject("PartDesign::Pad", "Pad022")
body23.addObject(pad23)
pad23.Profile = sketch23
pad23.Length = Q("0.688 in")
body24 = doc.addObject("PartDesign::Body", "Body023")

sketch24 = doc.addObject("Sketcher::SketchObject", "Sketch023")
body24.addObject(sketch24)
sketch24.AttachmentSupport = (doc.getObject("XZ_Plane023"), [""])
sketch24.MapMode = "FlatFace"
sketch24.AttachmentOffset = App.Placement(V(0, 0, 2.092 * 25.4), App.Rotation())
sketch24.addGeometry(Part.LineSegment(V(419, 470, 0), V(419, -470, 0)), False)
sketch24.addGeometry(Part.LineSegment(V(419, -470, 0), V(508, -470, 0)), False)
sketch24.addGeometry(Part.LineSegment(V(508, -470, 0), V(508, 470, 0)), False)
sketch24.addGeometry(Part.LineSegment(V(508, 470, 0), V(419, 470, 0)), False)
sketch24.addConstraint(Sketcher.Constraint("Coincident", 0, 2, 1, 1))
sketch24.addConstraint(Sketcher.Constraint("Coincident", 1, 2, 2, 1))
sketch24.addConstraint(Sketcher.Constraint("Coincident", 2, 2, 3, 1))
sketch24.addConstraint(Sketcher.Constraint("Coincident", 3, 2, 0, 1))
sketch24.addConstraint(Sketcher.Constraint("Vertical", 0))
sketch24.addConstraint(Sketcher.Constraint("Horizontal", 1))
sketch24.addConstraint(Sketcher.Constraint("Vertical", 2))
sketch24.addConstraint(Sketcher.Constraint("Horizontal", 3))
sketch24.addConstraint(Sketcher.Constraint("DistanceY", 0, 2, 0, 1, Q("37 in")))
sketch24.addConstraint(Sketcher.Constraint("DistanceX", 1, 1, 1, 2, Q("3.5 in")))
sketch24.addConstraint(Sketcher.Constraint("DistanceX", -1, 1, 1, 2, Q("20 in")))
sketch24.addConstraint(Sketcher.Constraint("DistanceY", 0, 2, -1, 1, Q("18.5 in")))
pad24 = doc.addObject("PartDesign::Pad", "Pad023")
body24.addObject(pad24)
pad24.Profile = sketch24
pad24.Length = Q("0.688 in")

doc.recompute()
